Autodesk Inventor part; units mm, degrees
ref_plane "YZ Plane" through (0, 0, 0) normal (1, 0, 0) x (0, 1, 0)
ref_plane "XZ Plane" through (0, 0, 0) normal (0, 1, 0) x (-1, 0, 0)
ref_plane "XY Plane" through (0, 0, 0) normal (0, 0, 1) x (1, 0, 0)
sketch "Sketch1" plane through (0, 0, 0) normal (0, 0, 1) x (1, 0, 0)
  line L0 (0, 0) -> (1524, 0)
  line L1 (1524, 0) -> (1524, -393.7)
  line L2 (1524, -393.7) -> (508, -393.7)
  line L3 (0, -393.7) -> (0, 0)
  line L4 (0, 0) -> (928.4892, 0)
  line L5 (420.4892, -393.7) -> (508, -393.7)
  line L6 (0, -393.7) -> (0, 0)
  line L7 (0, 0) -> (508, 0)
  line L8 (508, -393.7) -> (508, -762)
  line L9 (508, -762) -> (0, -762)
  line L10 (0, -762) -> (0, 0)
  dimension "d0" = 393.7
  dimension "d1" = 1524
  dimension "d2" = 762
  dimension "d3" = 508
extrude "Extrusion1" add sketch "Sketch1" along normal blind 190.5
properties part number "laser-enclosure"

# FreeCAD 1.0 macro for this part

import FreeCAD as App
import Part
import Sketcher

V = App.Vector
Q = App.Units.Quantity

doc = App.newDocument("Part")
body = doc.addObject("PartDesign::Body", "Body")

sketch1 = body.newObject("Sketcher::SketchObject", "Sketch")
sketch1.AttachmentSupport = (doc.getObject("XY_Plane"), [""])
sketch1.MapMode = "FlatFace"
sketch1.addGeometry(Part.LineSegment(V(1524, 0, 0), V(0, 0, 0)), False)
sketch1.addGeometry(Part.LineSegment(V(0, 0, 0), V(0, -762, 0)), False)
sketch1.addGeometry(Part.LineSegment(V(0, -762, 0), V(508, -762, 0)), False)
sketch1.addGeometry(Part.LineSegment(V(508, -762, 0), V(508, -393.7, 0)), False)
sketch1.addGeometry(Part.LineSegment(V(508, -393.7, 0), V(1524, -393.7, 0)), False)
sketch1.addGeometry(Part.LineSegment(V(1524, -393.7, 0), V(1524, 0, 0)), False)
sketch1.addConstraint(Sketcher.Constraint("Coincident", 0, 2, 1, 1))
sketch1.addConstraint(Sketcher.Constraint("Coincident", 1, 2, 2, 1))
sketch1.addConstraint(Sketcher.Constraint("Coincident", 2, 2, 3, 1))
sketch1.addConstraint(Sketcher.Constraint("Coincident", 3, 2, 4, 1))
sketch1.addConstraint(Sketcher.Constraint("Coincident", 4, 2, 5, 1))
sketch1.addConstraint(Sketcher.Constraint("Coincident", 5, 2, 0, 1))
sketch1.addConstraint(Sketcher.Constraint("Horizontal", 0))
sketch1.addConstraint(Sketcher.Constraint("Vertical", 1))
sketch1.addConstraint(Sketcher.Constraint("Horizontal", 2))
sketch1.addConstraint(Sketcher.Constraint("Vertical", 3))
sketch1.addConstraint(Sketcher.Constraint("Horizontal", 4))
sketch1.addConstraint(Sketcher.Constraint("Vertical", 5))
sketch1.addConstraint(Sketcher.Constraint("Coincident", 0, 2, -1, 1))
sketch1.addConstraint(Sketcher.Constraint("DistanceX", 0, 2, 0, 1, Q("60 in")))
sketch1.addConstraint(Sketcher.Constraint("DistanceX", 2, 1, 2, 2, Q("20 in")))
sketch1.addConstraint(Sketcher.Constraint("DistanceY", 1, 2, 1, 1, Q("30 in")))
sketch1.addConstraint(Sketcher.Constraint("DistanceY", 5, 1, 5, 2, Q("15.5 in")))
pad1 = body.newObject("PartDesign::Pad", "Pad")
pad1.Profile = sketch1
pad1.Length = Q("7.5 in")

doc.recompute()
